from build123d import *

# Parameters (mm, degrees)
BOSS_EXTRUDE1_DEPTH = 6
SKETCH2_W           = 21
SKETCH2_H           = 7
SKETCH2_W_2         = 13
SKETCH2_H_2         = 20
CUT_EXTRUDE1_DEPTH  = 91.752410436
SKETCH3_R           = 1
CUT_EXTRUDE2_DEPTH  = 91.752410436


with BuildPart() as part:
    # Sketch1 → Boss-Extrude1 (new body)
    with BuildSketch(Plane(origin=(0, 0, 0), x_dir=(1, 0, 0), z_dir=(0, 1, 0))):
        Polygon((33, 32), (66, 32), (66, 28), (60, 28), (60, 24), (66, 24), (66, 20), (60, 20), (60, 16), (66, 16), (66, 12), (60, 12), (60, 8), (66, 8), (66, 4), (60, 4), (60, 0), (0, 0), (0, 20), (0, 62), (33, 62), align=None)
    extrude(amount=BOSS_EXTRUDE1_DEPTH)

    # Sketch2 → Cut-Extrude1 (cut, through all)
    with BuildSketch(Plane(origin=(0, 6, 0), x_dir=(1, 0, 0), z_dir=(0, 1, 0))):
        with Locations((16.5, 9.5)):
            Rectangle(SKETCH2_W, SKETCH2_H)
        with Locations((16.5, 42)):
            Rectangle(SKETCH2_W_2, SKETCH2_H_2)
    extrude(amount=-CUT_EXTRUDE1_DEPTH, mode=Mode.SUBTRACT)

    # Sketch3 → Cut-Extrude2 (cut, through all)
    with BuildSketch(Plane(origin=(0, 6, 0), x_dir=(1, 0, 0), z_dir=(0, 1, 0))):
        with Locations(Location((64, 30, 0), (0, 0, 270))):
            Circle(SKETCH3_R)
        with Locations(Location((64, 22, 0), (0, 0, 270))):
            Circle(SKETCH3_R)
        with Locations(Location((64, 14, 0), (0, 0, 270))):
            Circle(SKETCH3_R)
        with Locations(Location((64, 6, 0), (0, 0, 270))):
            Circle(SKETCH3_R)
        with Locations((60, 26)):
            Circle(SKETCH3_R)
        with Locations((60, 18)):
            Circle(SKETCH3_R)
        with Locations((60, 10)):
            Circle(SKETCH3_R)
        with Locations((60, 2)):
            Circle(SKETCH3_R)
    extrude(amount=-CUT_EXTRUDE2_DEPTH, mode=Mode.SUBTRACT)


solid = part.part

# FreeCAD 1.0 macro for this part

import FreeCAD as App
import Part
import Sketcher
from FreeCAD import Vector
Q = App.Units.Quantity

doc = App.newDocument("Part")
body = doc.addObject("PartDesign::Body", "Body")

# Sketch on XZ plane
sketch1 = body.newObject("Sketcher::SketchObject", "Sketch")
sketch1.AttachmentSupport = (doc.getObject("XZ_Plane"), [""])
sketch1.MapMode = "FlatFace"
sketch1.addGeometry([
    Part.LineSegment(Vector(66, -32, 0), Vector(33, -32, 0)),  # 0
    Part.LineSegment(Vector(33, -32, 0), Vector(33, -62, 0)),  # 1
    Part.LineSegment(Vector(33, -62, 0), Vector(0, -62, 0)),  # 2
    Part.LineSegment(Vector(0, -62, 0), Vector(0, 0, 0)),  # 3
    Part.LineSegment(Vector(0, 0, 0), Vector(60, 0, 0)),  # 4
    Part.LineSegment(Vector(60, 0, 0), Vector(60, -4, 0)),  # 5
    Part.LineSegment(Vector(60, -4, 0), Vector(66, -4, 0)),  # 6
    Part.LineSegment(Vector(66, -4, 0), Vector(66, -8, 0)),  # 7
    Part.LineSegment(Vector(66, -8, 0), Vector(60, -8, 0)),  # 8
    Part.LineSegment(Vector(60, -8, 0), Vector(60, -12, 0)),  # 9
    Part.LineSegment(Vector(60, -12, 0), Vector(66, -12, 0)),  # 10
    Part.LineSegment(Vector(66, -12, 0), Vector(66, -16, 0)),  # 11
    Part.LineSegment(Vector(66, -16, 0), Vector(60, -16, 0)),  # 12
    Part.LineSegment(Vector(60, -16, 0), Vector(60, -20, 0)),  # 13
    Part.LineSegment(Vector(60, -20, 0), Vector(66, -20, 0)),  # 14
    Part.LineSegment(Vector(66, -20, 0), Vector(66, -24, 0)),  # 15
    Part.LineSegment(Vector(66, -24, 0), Vector(60, -24, 0)),  # 16
    Part.LineSegment(Vector(60, -24, 0), Vector(60, -28, 0)),  # 17
    Part.LineSegment(Vector(60, -28, 0), Vector(66, -28, 0)),  # 18
    Part.LineSegment(Vector(66, -28, 0), Vector(66, -32, 0)),  # 19
], False)
sketch1.addConstraint([
    Sketcher.Constraint("Coincident", 0, 2, 1, 1),
    Sketcher.Constraint("Coincident", 1, 2, 2, 1),
    Sketcher.Constraint("Coincident", 2, 2, 3, 1),
    Sketcher.Constraint("Coincident", 3, 2, 4, 1),
    Sketcher.Constraint("Coincident", 4, 2, 5, 1),
    Sketcher.Constraint("Coincident", 5, 2, 6, 1),
    Sketcher.Constraint("Coincident", 6, 2, 7, 1),
    Sketcher.Constraint("Coincident", 7, 2, 8, 1),
    Sketcher.Constraint("Coincident", 8, 2, 9, 1),
    Sketcher.Constraint("Coincident", 9, 2, 10, 1),
    Sketcher.Constraint("Coincident", 10, 2, 11, 1),
    Sketcher.Constraint("Coincident", 11, 2, 12, 1),
    Sketcher.Constraint("Coincident", 12, 2, 13, 1),
    Sketcher.Constraint("Coincident", 13, 2, 14, 1),
    Sketcher.Constraint("Coincident", 14, 2, 15, 1),
    Sketcher.Constraint("Coincident", 15, 2, 16, 1),
    Sketcher.Constraint("Coincident", 16, 2, 17, 1),
    Sketcher.Constraint("Coincident", 17, 2, 18, 1),
    Sketcher.Constraint("Coincident", 18, 2, 19, 1),
    Sketcher.Constraint("Coincident", 19, 2, 0, 1),
    Sketcher.Constraint("Horizontal", 0),
    Sketcher.Constraint("Vertical", 1),
    Sketcher.Constraint("Horizontal", 2),
    Sketcher.Constraint("Vertical", 3),
    Sketcher.Constraint("Horizontal", 4),
    Sketcher.Constraint("Vertical", 5),
    Sketcher.Constraint("Horizontal", 6),
    Sketcher.Constraint("Vertical", 7),
    Sketcher.Constraint("Horizontal", 8),
    Sketcher.Constraint("Vertical", 9),
    Sketcher.Constraint("Horizontal", 10),
    Sketcher.Constraint("Vertical", 11),
    Sketcher.Constraint("Horizontal", 12),
    Sketcher.Constraint("Vertical", 13),
    Sketcher.Constraint("Horizontal", 14),
    Sketcher.Constraint("Vertical", 15),
    Sketcher.Constraint("Horizontal", 16),
    Sketcher.Constraint("Vertical", 17),
    Sketcher.Constraint("Horizontal", 18),
    Sketcher.Constraint("Vertical", 19),
    Sketcher.Constraint("Coincident", 3, 2, -1, 1),
    Sketcher.Constraint("Vertical", 5, 2, 8, 2),
    Sketcher.Constraint("Vertical", 7, 2, 10, 2),
    Sketcher.Constraint("Vertical", 9, 2, 12, 2),
    Sketcher.Constraint("Vertical", 11, 2, 14, 2),
    Sketcher.Constraint("Vertical", 13, 2, 16, 2),
    Sketcher.Constraint("Vertical", 15, 2, 18, 2),
    Sketcher.Constraint("Equal", 0, 2),
    Sketcher.Constraint("Equal", 5, 7),
    Sketcher.Constraint("Equal", 7, 9),
    Sketcher.Constraint("Equal", 9, 11),
    Sketcher.Constraint("Equal", 11, 13),
    Sketcher.Constraint("Equal", 13, 15),
    Sketcher.Constraint("Equal", 15, 17),
    Sketcher.Constraint("Equal", 17, 19),
    Sketcher.Constraint("DistanceX", 0, 2, 0, 1, Q("33 mm")),
    Sketcher.Constraint("DistanceX", 4, 1, 4, 2, Q("60 mm")),
    Sketcher.Constraint("DistanceY", 1, 2, 1, 1, Q("30 mm")),
    Sketcher.Constraint("DistanceY", 3, 1, 3, 2, Q("62 mm")),
])
pad1 = body.newObject("PartDesign::Pad", "Pad")
pad1.Profile = sketch1
pad1.Length = 6
pad1.Reversed = True

# Sketch on XZ plane
sketch2 = body.newObject("Sketcher::SketchObject", "Sketch001")
sketch2.AttachmentSupport = (doc.getObject("XZ_Plane"), [""])
sketch2.MapMode = "FlatFace"
sketch2.AttachmentOffset = App.Placement(Vector(0, 0, -6), App.Rotation())
sketch2.addGeometry([
    Part.LineSegment(Vector(6, -13, 0), Vector(6, -6, 0)),  # 0
    Part.LineSegment(Vector(6, -6, 0), Vector(27, -6, 0)),  # 1
    Part.LineSegment(Vector(27, -6, 0), Vector(27, -13, 0)),  # 2
    Part.LineSegment(Vector(27, -13, 0), Vector(6, -13, 0)),  # 3
    Part.LineSegment(Vector(10, -52, 0), Vector(10, -32, 0)),  # 4
    Part.LineSegment(Vector(10, -32, 0), Vector(23, -32, 0)),  # 5
    Part.LineSegment(Vector(23, -32, 0), Vector(23, -52, 0)),  # 6
    Part.LineSegment(Vector(23, -52, 0), Vector(10, -52, 0)),  # 7
], False)
sketch2.addConstraint([
    Sketcher.Constraint("Coincident", 0, 2, 1, 1),
    Sketcher.Constraint("Coincident", 1, 2, 2, 1),
    Sketcher.Constraint("Coincident", 2, 2, 3, 1),
    Sketcher.Constraint("Coincident", 3, 2, 0, 1),
    Sketcher.Constraint("Coincident", 4, 2, 5, 1),
    Sketcher.Constraint("Coincident", 5, 2, 6, 1),
    Sketcher.Constraint("Coincident", 6, 2, 7, 1),
    Sketcher.Constraint("Coincident", 7, 2, 4, 1),
    Sketcher.Constraint("Vertical", 0),
    Sketcher.Constraint("Horizontal", 1),
    Sketcher.Constraint("Vertical", 2),
    Sketcher.Constraint("Horizontal", 3),
    Sketcher.Constraint("Vertical", 4),
    Sketcher.Constraint("Horizontal", 5),
    Sketcher.Constraint("Vertical", 6),
    Sketcher.Constraint("Horizontal", 7),
    Sketcher.Constraint("DistanceX", 1, 1, 1, 2, Q("21 mm")),
    Sketcher.Constraint("DistanceX", 5, 1, 5, 2, Q("13 mm")),
    Sketcher.Constraint("DistanceY", 0, 1, 0, 2, Q("7 mm")),
    Sketcher.Constraint("DistanceY", 4, 1, 4, 2, Q("20 mm")),
    Sketcher.Constraint("DistanceX", -1, 1, 0, 2, Q("6 mm")),
    Sketcher.Constraint("DistanceY", 0, 2, -1, 1, Q("6 mm")),
    Sketcher.Constraint("DistanceX", -1, 1, 4, 2, Q("10 mm")),
    Sketcher.Constraint("DistanceY", 4, 2, -1, 1, Q("32 mm")),
])
pocket1 = body.newObject("PartDesign::Pocket", "Pocket")
pocket1.Profile = sketch2
pocket1.Type = "ThroughAll"
pocket1.Reversed = True

# Sketch on XZ plane
sketch3 = body.newObject("Sketcher::SketchObject", "Sketch002")
sketch3.AttachmentSupport = (doc.getObject("XZ_Plane"), [""])
sketch3.MapMode = "FlatFace"
sketch3.AttachmentOffset = App.Placement(Vector(0, 0, -6), App.Rotation())
sketch3.addGeometry([
    Part.Circle(Vector(64, -30, 0), Vector(0, 0, 1), 1),  # 0
    Part.Circle(Vector(64, -22, 0), Vector(0, 0, 1), 1),  # 1
    Part.Circle(Vector(64, -14, 0), Vector(0, 0, 1), 1),  # 2
    Part.Circle(Vector(64, -6, 0), Vector(0, 0, 1), 1),  # 3
    Part.Circle(Vector(60, -26, 0), Vector(0, 0, 1), 1),  # 4
    Part.Circle(Vector(60, -18, 0), Vector(0, 0, 1), 1),  # 5
    Part.Circle(Vector(60, -10, 0), Vector(0, 0, 1), 1),  # 6
    Part.Circle(Vector(60, -2, 0), Vector(0, 0, 1), 1),  # 7
], False)
sketch3.addConstraint([
    Sketcher.Constraint("Equal", 0, 1),
    Sketcher.Constraint("Equal", 1, 2),
    Sketcher.Constraint("Equal", 2, 3),
    Sketcher.Constraint("Equal", 3, 4),
    Sketcher.Constraint("Equal", 4, 5),
    Sketcher.Constraint("Equal", 5, 6),
    Sketcher.Constraint("Equal", 6, 7),
    Sketcher.Constraint("Vertical", 0, 3, 1, 3),
    Sketcher.Constraint("Vertical", 1, 3, 2, 3),
    Sketcher.Constraint("Vertical", 2, 3, 3, 3),
    Sketcher.Constraint("Vertical", 4, 3, 5, 3),
    Sketcher.Constraint("Vertical", 5, 3, 6, 3),
    Sketcher.Constraint("Vertical", 6, 3, 7, 3),
    Sketcher.Constraint("Diameter", 0, Q("2 mm")),
    Sketcher.Constraint("DistanceX", -1, 1, 0, 3, Q("64 mm")),
    Sketcher.Constraint("DistanceY", 0, 3, -1, 1, Q("30 mm")),
    Sketcher.Constraint("DistanceY", 1, 3, -1, 1, Q("22 mm")),
    Sketcher.Constraint("DistanceY", 2, 3, -1, 1, Q("14 mm")),
    Sketcher.Constraint("DistanceY", 3, 3, -1, 1, Q("6 mm")),
    Sketcher.Constraint("DistanceX", -1, 1, 4, 3, Q("60 mm")),
    Sketcher.Constraint("DistanceY", 4, 3, -1, 1, Q("26 mm")),
    Sketcher.Constraint("DistanceY", 5, 3, -1, 1, Q("18 mm")),
    Sketcher.Constraint("DistanceY", 6, 3, -1, 1, Q("10 mm")),
    Sketcher.Constraint("DistanceY", 7, 3, -1, 1, Q("2 mm")),
])
pocket2 = body.newObject("PartDesign::Pocket", "Pocket001")
pocket2.Profile = sketch3
pocket2.Type = "ThroughAll"
pocket2.Reversed = True

doc.recompute()
